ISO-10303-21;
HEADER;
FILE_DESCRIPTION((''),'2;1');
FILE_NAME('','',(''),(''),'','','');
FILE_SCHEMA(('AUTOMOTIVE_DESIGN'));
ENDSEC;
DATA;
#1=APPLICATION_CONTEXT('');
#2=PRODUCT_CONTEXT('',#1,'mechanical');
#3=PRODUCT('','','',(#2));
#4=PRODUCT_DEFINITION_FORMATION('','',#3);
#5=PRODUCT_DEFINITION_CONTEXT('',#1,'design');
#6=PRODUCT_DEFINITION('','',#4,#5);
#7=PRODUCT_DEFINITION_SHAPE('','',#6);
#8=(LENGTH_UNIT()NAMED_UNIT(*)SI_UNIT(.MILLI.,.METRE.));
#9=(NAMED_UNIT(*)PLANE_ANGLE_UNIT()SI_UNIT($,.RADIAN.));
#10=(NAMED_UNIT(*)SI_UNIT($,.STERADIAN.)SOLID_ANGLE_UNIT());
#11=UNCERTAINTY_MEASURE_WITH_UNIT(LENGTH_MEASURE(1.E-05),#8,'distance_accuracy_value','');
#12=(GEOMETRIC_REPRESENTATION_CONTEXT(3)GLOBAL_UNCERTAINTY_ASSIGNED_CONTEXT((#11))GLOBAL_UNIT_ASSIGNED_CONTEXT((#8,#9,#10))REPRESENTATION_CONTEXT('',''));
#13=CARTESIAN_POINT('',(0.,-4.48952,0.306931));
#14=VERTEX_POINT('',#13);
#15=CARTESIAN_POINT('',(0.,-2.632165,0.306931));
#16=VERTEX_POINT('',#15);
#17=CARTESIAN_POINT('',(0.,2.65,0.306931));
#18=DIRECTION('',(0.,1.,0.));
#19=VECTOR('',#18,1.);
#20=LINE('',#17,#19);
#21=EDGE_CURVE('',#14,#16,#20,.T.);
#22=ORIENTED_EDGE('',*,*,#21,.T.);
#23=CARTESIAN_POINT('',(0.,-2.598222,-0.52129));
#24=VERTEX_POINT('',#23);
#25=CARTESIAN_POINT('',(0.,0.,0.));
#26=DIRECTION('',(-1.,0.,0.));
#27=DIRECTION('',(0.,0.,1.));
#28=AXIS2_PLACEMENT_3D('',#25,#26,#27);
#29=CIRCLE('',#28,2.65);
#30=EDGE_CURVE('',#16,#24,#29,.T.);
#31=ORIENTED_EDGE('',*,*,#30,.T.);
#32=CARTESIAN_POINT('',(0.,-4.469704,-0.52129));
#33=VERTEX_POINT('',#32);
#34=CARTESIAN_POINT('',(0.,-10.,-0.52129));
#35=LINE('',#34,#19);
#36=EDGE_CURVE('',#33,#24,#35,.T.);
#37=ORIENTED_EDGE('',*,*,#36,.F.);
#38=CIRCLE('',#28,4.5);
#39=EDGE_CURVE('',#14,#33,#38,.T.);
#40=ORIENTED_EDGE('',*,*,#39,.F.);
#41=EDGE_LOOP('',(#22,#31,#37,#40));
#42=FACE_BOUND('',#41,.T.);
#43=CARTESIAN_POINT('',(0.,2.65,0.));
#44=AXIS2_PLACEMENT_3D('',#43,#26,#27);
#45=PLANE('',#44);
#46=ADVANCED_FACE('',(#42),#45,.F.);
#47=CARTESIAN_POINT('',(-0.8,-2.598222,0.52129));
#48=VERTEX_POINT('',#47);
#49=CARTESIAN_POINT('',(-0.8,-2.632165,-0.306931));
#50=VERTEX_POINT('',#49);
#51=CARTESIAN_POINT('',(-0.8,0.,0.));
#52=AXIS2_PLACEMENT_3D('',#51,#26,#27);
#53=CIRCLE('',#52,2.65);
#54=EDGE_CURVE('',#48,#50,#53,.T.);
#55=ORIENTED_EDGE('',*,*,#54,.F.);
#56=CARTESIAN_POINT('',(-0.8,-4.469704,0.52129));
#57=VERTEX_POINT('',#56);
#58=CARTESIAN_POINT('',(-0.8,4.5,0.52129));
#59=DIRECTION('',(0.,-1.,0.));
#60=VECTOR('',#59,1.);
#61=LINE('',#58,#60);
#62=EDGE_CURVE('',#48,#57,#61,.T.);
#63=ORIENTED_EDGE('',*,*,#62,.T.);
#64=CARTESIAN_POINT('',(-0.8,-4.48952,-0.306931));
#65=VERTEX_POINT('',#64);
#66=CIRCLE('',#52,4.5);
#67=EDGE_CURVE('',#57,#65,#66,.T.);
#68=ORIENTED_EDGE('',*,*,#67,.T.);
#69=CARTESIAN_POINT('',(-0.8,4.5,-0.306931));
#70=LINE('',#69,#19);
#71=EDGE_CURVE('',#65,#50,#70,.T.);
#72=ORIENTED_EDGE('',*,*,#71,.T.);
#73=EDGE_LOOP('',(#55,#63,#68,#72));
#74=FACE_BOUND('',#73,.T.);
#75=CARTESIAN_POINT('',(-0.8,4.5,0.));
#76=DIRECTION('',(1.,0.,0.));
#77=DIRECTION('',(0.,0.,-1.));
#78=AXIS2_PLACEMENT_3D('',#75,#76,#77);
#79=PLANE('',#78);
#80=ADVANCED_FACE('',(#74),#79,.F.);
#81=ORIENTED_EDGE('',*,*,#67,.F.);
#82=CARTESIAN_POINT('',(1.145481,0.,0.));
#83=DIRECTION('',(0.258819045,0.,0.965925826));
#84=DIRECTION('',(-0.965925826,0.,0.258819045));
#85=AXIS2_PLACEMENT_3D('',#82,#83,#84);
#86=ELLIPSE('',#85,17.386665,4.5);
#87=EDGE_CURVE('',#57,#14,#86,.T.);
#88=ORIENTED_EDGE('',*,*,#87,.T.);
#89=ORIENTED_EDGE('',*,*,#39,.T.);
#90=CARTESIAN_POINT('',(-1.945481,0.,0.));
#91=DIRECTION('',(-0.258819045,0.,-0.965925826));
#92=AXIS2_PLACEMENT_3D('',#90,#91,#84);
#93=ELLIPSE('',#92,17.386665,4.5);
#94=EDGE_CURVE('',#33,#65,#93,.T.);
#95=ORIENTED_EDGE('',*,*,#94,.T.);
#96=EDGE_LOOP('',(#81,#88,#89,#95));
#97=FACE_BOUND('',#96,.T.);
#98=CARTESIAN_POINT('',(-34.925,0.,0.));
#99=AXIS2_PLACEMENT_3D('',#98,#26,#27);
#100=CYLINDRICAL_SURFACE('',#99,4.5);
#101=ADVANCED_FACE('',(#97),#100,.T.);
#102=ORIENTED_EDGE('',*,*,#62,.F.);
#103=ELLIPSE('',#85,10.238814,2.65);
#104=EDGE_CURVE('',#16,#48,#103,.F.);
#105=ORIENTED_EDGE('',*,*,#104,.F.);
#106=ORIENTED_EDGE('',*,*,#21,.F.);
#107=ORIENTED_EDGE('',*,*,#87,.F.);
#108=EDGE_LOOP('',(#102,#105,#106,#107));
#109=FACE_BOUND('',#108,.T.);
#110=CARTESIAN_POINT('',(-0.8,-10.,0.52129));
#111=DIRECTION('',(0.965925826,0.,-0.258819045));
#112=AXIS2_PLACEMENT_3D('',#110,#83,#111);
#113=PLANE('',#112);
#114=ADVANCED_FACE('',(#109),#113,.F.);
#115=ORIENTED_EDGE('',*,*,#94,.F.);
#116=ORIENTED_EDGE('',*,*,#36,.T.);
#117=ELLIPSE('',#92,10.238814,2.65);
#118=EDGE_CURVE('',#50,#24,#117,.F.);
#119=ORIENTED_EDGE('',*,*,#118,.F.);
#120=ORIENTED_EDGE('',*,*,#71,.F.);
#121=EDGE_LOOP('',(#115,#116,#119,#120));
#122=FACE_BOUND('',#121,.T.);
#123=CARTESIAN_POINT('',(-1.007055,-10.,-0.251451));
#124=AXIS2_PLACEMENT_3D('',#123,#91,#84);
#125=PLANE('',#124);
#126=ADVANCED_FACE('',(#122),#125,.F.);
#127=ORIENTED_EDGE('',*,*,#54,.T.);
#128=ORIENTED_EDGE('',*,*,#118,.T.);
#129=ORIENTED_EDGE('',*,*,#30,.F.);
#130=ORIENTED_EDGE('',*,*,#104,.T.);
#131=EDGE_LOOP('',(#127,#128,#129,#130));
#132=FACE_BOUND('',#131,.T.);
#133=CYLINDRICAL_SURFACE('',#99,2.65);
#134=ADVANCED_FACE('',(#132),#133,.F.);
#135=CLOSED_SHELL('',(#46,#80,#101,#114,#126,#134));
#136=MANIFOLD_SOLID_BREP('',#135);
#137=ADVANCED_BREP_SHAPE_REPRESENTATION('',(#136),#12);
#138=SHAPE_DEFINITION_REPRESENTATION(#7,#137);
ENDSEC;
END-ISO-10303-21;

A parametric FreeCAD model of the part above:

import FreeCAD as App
import Part
import Sketcher
from FreeCAD import Vector
Q = App.Units.Quantity

doc = App.newDocument("Part")
body = doc.addObject("PartDesign::Body", "Body")

# Sketch on XY plane
sketch1 = body.newObject("Sketcher::SketchObject", "Sketch")
sketch1.AttachmentSupport = (doc.getObject("XY_Plane"), [""])
sketch1.MapMode = "FlatFace"
sketch1.addGeometry(Part.LineSegment(Vector(-0.8, 4.5, 0), Vector(-0.8, 2.6, 0)), False)
sketch1.addGeometry(Part.LineSegment(Vector(-0.8, 2.6, 0), Vector(0, 2.6, 0)), False)
sketch1.addGeometry(Part.LineSegment(Vector(0, 2.6, 0), Vector(0, 4.5, 0)), False)
sketch1.addGeometry(Part.LineSegment(Vector(0, 4.5, 0), Vector(-0.8, 4.5, 0)), False)
sketch1.addConstraint(Sketcher.Constraint("Coincident", 0, 2, 1, 1))
sketch1.addConstraint(Sketcher.Constraint("Coincident", 1, 2, 2, 1))
sketch1.addConstraint(Sketcher.Constraint("Coincident", 2, 2, 3, 1))
sketch1.addConstraint(Sketcher.Constraint("Coincident", 3, 2, 0, 1))
sketch1.addConstraint(Sketcher.Constraint("Vertical", 0))
sketch1.addConstraint(Sketcher.Constraint("Horizontal", 1))
sketch1.addConstraint(Sketcher.Constraint("Vertical", 2))
sketch1.addConstraint(Sketcher.Constraint("Horizontal", 3))
sketch1.addConstraint(Sketcher.Constraint("PointOnObject", 1, 2, -2))
sketch1.addConstraint(Sketcher.Constraint("DistanceX", 1, 1, 1, 2, Q("0.8 mm")))
sketch1.addConstraint(Sketcher.Constraint("DistanceY", 0, 2, 0, 1, Q("1.85 mm")))
sketch1.addConstraint(Sketcher.Constraint("DistanceY", -1, 1, 2, 2, Q("4.5 mm")))
revolution = body.newObject("PartDesign::Revolution", "Revolution")
revolution.Profile = sketch1
revolution.ReferenceAxis = (sketch1, ["H_Axis"])
revolution.Angle = 360

# Sketch on XZ plane
sketch2 = body.newObject("Sketcher::SketchObject", "Sketch001")
sketch2.AttachmentSupport = (doc.getObject("XZ_Plane"), [""])
sketch2.MapMode = "FlatFace"
sketch2.addGeometry(Part.LineSegment(Vector(-0.8, 0.5, 0), Vector(0.2, 0.3, 0)), False)
sketch2.addGeometry(Part.LineSegment(Vector(0.2, 0.3, 0), Vector(0, -0.5, 0)), False)
sketch2.addGeometry(Part.LineSegment(Vector(0, -0.5, 0), Vector(-1, -0.3, 0)), False)
sketch2.addGeometry(Part.LineSegment(Vector(-1, -0.3, 0), Vector(-0.8, 0.5, 0)), False)
sketch2.addConstraint(Sketcher.Constraint("Coincident", 0, 2, 1, 1))
sketch2.addConstraint(Sketcher.Constraint("Coincident", 1, 2, 2, 1))
sketch2.addConstraint(Sketcher.Constraint("Coincident", 2, 2, 3, 1))
sketch2.addConstraint(Sketcher.Constraint("Coincident", 3, 2, 0, 1))
sketch2.addConstraint(Sketcher.Constraint("PointOnObject", 1, 2, -2))
sketch2.addConstraint(Sketcher.Constraint("Perpendicular", 0, 1))
sketch2.addConstraint(Sketcher.Constraint("Perpendicular", 1, 2))
sketch2.addConstraint(Sketcher.Constraint("Perpendicular", 2, 3))
sketch2.addConstraint(Sketcher.Constraint("Angle", 0, Q("-15 deg")))
sketch2.addConstraint(Sketcher.Constraint("Distance", 1, Q("0.8 mm")))
sketch2.addConstraint(Sketcher.Constraint("DistanceX", 3, 2, -1, 1, Q("0.8 mm")))
sketch2.addConstraint(Sketcher.Constraint("DistanceY", -1, 1, 0, 2, Q("0.251451 mm")))
pocket1 = body.newObject("PartDesign::Pocket", "Pocket")
pocket1.Profile = sketch2
pocket1.Length = 10
pocket1.Reversed = True

doc.recompute()
